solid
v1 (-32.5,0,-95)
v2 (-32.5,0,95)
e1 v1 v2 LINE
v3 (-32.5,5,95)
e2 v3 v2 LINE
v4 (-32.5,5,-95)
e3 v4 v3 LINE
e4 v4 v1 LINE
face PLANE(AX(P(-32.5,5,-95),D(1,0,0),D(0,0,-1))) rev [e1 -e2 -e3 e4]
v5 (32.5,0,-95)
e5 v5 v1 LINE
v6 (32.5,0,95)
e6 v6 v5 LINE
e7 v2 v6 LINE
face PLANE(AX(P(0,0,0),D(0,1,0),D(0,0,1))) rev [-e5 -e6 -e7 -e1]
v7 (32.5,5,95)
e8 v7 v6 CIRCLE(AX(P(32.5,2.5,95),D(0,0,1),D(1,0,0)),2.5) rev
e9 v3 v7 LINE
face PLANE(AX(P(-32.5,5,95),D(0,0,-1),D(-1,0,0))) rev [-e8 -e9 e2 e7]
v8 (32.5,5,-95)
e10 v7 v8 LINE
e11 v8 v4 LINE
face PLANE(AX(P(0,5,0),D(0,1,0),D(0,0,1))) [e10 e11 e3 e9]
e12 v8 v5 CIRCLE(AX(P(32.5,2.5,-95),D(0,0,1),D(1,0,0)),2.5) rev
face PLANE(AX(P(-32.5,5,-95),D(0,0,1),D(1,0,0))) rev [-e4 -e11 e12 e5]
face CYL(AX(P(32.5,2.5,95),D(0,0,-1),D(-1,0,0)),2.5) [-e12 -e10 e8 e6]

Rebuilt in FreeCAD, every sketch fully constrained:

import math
import FreeCAD as App
import Part
import Sketcher
from FreeCAD import Vector

doc = App.newDocument("Part")
body = doc.addObject("PartDesign::Body", "Body")

sketch1 = doc.addObject("Sketcher::SketchObject", "Sketch")
body.addObject(sketch1)
sketch1.AttachmentSupport = (doc.XZ_Plane, [""])
sketch1.MapMode = "FlatFace"
sketch1.addGeometry(Part.LineSegment(Vector(-32.5, -95, 0), Vector(-32.5, 95, 0)), False)
sketch1.addGeometry(Part.LineSegment(Vector(-32.5, 95, 0), Vector(32.5, 95, 0)), False)
sketch1.addGeometry(Part.LineSegment(Vector(32.5, 95, 0), Vector(32.5, -95, 0)), False)
sketch1.addGeometry(Part.LineSegment(Vector(32.5, -95, 0), Vector(-32.5, -95, 0)), False)
sketch1.addConstraint(Sketcher.Constraint("Coincident", 0, 2, 1, 1))
sketch1.addConstraint(Sketcher.Constraint("Coincident", 1, 2, 2, 1))
sketch1.addConstraint(Sketcher.Constraint("Coincident", 2, 2, 3, 1))
sketch1.addConstraint(Sketcher.Constraint("Coincident", 3, 2, 0, 1))
sketch1.addConstraint(Sketcher.Constraint("Vertical", 0))
sketch1.addConstraint(Sketcher.Constraint("Horizontal", 1))
sketch1.addConstraint(Sketcher.Constraint("Vertical", 2))
sketch1.addConstraint(Sketcher.Constraint("Horizontal", 3))
sketch1.addConstraint(Sketcher.Constraint("Symmetric", 0, 2, 2, 2, -1, 1))
sketch1.addConstraint(Sketcher.Constraint("DistanceX", 1, 1, 1, 2, 65.0))
sketch1.addConstraint(Sketcher.Constraint("DistanceY", 0, 1, 0, 2, 190.0))
pad1 = doc.addObject("PartDesign::Pad", "Pad")
body.addObject(pad1)
pad1.Profile = sketch1
pad1.Length = 5
pad1.Reversed = True

sketch2 = doc.addObject("Sketcher::SketchObject", "Sketch001")
body.addObject(sketch2)
sketch2.AttachmentSupport = (doc.XY_Plane, [""])
sketch2.MapMode = "FlatFace"
sketch2.addGeometry(Part.ArcOfCircle(Part.Circle(Vector(32.5, 2.5, 0), Vector(0, 0, 1), 2.5), math.radians(-90), math.radians(90)), False)
sketch2.addGeometry(Part.LineSegment(Vector(32.5, 5, 0), Vector(32.5, 0, 0)), False)
sketch2.addConstraint(Sketcher.Constraint("Coincident", 0, 1, 1, 2))
sketch2.addConstraint(Sketcher.Constraint("Coincident", 1, 1, 0, 2))
sketch2.addConstraint(Sketcher.Constraint("Vertical", 1))
sketch2.addConstraint(Sketcher.Constraint("PointOnObject", 0, 1, -1))
sketch2.addConstraint(Sketcher.Constraint("Radius", 0, 2.5))
sketch2.addConstraint(Sketcher.Constraint("DistanceX", -1, 1, 0, 3, 32.5))
sketch2.addConstraint(Sketcher.Constraint("DistanceX", -1, 1, 0, 1, 32.5))
pad2 = doc.addObject("PartDesign::Pad", "Pad001")
body.addObject(pad2)
pad2.Profile = sketch2
pad2.Type = "TwoLengths"
pad2.Length = 95
pad2.Length2 = 95

doc.recompute()
